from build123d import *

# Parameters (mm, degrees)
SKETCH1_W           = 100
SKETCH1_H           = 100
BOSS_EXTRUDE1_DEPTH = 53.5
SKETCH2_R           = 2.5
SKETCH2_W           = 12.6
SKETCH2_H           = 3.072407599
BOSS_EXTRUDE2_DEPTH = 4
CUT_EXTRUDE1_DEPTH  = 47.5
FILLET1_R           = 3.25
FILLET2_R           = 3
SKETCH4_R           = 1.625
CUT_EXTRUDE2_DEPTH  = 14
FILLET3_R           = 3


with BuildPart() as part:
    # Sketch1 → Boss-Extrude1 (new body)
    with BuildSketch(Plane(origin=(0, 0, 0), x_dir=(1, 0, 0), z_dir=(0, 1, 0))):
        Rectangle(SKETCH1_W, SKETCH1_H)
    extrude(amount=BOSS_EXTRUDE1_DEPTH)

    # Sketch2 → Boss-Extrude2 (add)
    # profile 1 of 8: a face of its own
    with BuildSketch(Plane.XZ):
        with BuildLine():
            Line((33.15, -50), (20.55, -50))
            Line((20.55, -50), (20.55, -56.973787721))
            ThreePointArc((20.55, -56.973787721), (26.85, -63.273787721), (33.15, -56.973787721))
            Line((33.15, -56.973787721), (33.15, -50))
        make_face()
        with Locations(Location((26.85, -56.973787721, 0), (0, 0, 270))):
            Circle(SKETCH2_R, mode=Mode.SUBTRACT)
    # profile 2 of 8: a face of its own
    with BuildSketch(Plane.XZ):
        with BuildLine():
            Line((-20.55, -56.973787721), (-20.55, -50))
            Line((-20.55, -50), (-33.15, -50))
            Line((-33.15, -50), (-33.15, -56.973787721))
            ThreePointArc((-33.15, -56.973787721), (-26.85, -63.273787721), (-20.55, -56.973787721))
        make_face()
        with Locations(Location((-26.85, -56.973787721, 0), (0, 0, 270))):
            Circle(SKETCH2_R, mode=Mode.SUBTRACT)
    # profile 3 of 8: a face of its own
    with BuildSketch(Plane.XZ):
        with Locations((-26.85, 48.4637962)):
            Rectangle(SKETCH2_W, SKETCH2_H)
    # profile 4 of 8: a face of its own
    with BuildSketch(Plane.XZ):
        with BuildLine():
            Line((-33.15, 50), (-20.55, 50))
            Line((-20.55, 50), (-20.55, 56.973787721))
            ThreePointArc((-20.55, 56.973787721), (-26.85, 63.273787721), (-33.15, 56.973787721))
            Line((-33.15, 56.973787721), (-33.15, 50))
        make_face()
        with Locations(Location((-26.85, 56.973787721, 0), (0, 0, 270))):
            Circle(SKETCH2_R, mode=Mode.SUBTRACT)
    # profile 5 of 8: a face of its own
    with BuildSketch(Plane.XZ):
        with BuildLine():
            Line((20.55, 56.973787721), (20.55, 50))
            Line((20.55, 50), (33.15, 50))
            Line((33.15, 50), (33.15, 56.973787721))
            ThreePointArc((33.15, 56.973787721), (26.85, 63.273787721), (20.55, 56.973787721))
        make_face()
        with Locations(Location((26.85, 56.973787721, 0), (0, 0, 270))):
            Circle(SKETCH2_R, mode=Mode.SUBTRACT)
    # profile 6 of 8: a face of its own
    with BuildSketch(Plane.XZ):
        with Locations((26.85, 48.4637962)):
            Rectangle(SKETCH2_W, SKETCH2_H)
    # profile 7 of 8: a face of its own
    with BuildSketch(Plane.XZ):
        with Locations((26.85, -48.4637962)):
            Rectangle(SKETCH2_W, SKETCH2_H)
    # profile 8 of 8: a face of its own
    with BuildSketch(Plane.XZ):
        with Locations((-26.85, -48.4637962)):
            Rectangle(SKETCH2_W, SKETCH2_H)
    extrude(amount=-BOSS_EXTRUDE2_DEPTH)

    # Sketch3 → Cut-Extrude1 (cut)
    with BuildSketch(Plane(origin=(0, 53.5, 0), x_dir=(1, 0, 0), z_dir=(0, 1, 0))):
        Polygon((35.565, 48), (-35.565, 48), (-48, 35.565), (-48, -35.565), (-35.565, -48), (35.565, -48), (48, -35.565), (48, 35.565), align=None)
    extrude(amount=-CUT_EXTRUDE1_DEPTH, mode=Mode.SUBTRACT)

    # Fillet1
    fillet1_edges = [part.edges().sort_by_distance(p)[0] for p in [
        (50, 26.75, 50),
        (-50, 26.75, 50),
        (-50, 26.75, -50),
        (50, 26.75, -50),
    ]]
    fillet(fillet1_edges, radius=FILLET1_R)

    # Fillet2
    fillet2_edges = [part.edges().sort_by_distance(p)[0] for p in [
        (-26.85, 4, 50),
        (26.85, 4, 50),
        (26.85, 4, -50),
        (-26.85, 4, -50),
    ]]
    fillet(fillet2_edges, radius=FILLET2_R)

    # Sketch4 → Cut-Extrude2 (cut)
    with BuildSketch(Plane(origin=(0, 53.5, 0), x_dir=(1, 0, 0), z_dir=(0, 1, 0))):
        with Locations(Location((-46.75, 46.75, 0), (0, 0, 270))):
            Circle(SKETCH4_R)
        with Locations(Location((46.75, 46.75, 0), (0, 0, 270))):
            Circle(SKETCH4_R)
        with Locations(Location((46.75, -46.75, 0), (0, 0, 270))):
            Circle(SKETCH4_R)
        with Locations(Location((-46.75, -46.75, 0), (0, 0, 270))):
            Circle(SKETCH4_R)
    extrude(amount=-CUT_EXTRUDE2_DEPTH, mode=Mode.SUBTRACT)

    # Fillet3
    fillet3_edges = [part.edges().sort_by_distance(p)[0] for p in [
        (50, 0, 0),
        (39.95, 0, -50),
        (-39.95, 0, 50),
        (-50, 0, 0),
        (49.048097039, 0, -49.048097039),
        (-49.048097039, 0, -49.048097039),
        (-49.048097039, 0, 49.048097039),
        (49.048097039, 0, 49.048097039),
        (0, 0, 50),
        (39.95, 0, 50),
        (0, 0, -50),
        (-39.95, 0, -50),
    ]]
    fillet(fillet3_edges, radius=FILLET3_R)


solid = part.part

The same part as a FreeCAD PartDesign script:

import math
import FreeCAD as App
import Part
import Sketcher
from FreeCAD import Vector
Q = App.Units.Quantity


def edges_at(feature, points):
    """Names of the edges that pass closest to the given points."""
    edges = feature.Shape.Edges
    near = lambda p: min(range(len(edges)), key=lambda i: edges[i].distToShape(Part.Vertex(*p))[0])
    return sorted({f"Edge{near(p) + 1}" for p in points})


def add_polygon(sketch, points):
    """Adds a closed chain of lines whose ends are joined by coincident constraints."""
    first, n = sketch.GeometryCount, len(points)
    for a, b in zip(points, points[1:] + points[:1]):
        sketch.addGeometry(Part.LineSegment(App.Vector(*a, 0), App.Vector(*b, 0)), False)
    for i in range(n):
        sketch.addConstraint(Sketcher.Constraint("Coincident", first + i, 2, first + (i + 1) % n, 1))

doc = App.newDocument("Part")
body = doc.addObject("PartDesign::Body", "Body")

sketch1 = body.newObject("Sketcher::SketchObject", "Sketch")
sketch1.AttachmentSupport = (doc.getObject("XZ_Plane"), [""])
sketch1.MapMode = "FlatFace"
add_polygon(sketch1, [(-50, -50), (-50, 50), (50, 50), (50, -50)])
sketch1.addConstraint(Sketcher.Constraint("Vertical", 0))
sketch1.addConstraint(Sketcher.Constraint("Horizontal", 1))
sketch1.addConstraint(Sketcher.Constraint("Vertical", 2))
sketch1.addConstraint(Sketcher.Constraint("Horizontal", 3))
sketch1.addConstraint(Sketcher.Constraint("Symmetric", 0, 2, 2, 2, -1, 1))
sketch1.addConstraint(Sketcher.Constraint("Equal", 3, 0))
sketch1.addConstraint(Sketcher.Constraint("DistanceX", 1, 1, 1, 2, Q("100 mm")))
pad1 = body.newObject("PartDesign::Pad", "Pad")
pad1.Profile = sketch1
pad1.Length = 53.5
pad1.Reversed = True

sketch2 = body.newObject("Sketcher::SketchObject", "Sketch001")
sketch2.AttachmentSupport = (doc.getObject("XZ_Plane"), [""])
sketch2.MapMode = "FlatFace"
sketch2.addGeometry(Part.LineSegment(Vector(33.1, -57, 0), Vector(33.1, -46.9, 0)), False)
sketch2.addGeometry(Part.LineSegment(Vector(33.1, -46.9, 0), Vector(20.6, -46.9, 0)), False)
sketch2.addGeometry(Part.LineSegment(Vector(20.6, -46.9, 0), Vector(20.6, -57, 0)), False)
sketch2.addGeometry(Part.ArcOfCircle(Part.Circle(Vector(26.9, -57, 0), Vector(0, 0, 1), 6.3), math.radians(180), math.radians(360)), False)
sketch2.addGeometry(Part.Circle(Vector(26.9, -57, 0), Vector(0, 0, 1), 2.5), False)
sketch2.addGeometry(Part.LineSegment(Vector(-20.6, -57, 0), Vector(-20.6, -46.9, 0)), False)
sketch2.addGeometry(Part.LineSegment(Vector(-20.6, -46.9, 0), Vector(-33.1, -46.9, 0)), False)
sketch2.addGeometry(Part.LineSegment(Vector(-33.1, -46.9, 0), Vector(-33.1, -57, 0)), False)
sketch2.addGeometry(Part.ArcOfCircle(Part.Circle(Vector(-26.9, -57, 0), Vector(0, 0, 1), 6.3), math.radians(180), math.radians(360)), False)
sketch2.addGeometry(Part.Circle(Vector(-26.9, -57, 0), Vector(0, 0, 1), 2.5), False)
sketch2.addGeometry(Part.LineSegment(Vector(-33.1, 46.9, 0), Vector(-20.6, 46.9, 0)), False)
sketch2.addGeometry(Part.LineSegment(Vector(-20.6, 46.9, 0), Vector(-20.6, 57, 0)), False)
sketch2.addGeometry(Part.ArcOfCircle(Part.Circle(Vector(-26.9, 57, 0), Vector(0, 0, 1), 6.3), math.radians(0), math.radians(180)), False)
sketch2.addGeometry(Part.LineSegment(Vector(-33.1, 57, 0), Vector(-33.1, 46.9, 0)), False)
sketch2.addGeometry(Part.Circle(Vector(-26.9, 57, 0), Vector(0, 0, 1), 2.5), False)
sketch2.addGeometry(Part.LineSegment(Vector(20.6, 57, 0), Vector(20.6, 46.9, 0)), False)
sketch2.addGeometry(Part.LineSegment(Vector(20.6, 46.9, 0), Vector(33.1, 46.9, 0)), False)
sketch2.addGeometry(Part.LineSegment(Vector(33.1, 46.9, 0), Vector(33.1, 57, 0)), False)
sketch2.addGeometry(Part.ArcOfCircle(Part.Circle(Vector(26.9, 57, 0), Vector(0, 0, 1), 6.3), math.radians(0), math.radians(180)), False)
sketch2.addGeometry(Part.Circle(Vector(26.9, 57, 0), Vector(0, 0, 1), 2.5), False)
sketch2.addConstraint(Sketcher.Constraint("Coincident", 0, 2, 1, 1))
sketch2.addConstraint(Sketcher.Constraint("Coincident", 1, 2, 2, 1))
sketch2.addConstraint(Sketcher.Constraint("Tangent", 2, 2, 3, 1))
sketch2.addConstraint(Sketcher.Constraint("Tangent", 3, 2, 0, 1))
sketch2.addConstraint(Sketcher.Constraint("Coincident", 5, 2, 6, 1))
sketch2.addConstraint(Sketcher.Constraint("Coincident", 6, 2, 7, 1))
sketch2.addConstraint(Sketcher.Constraint("Tangent", 7, 2, 8, 1))
sketch2.addConstraint(Sketcher.Constraint("Tangent", 8, 2, 5, 1))
sketch2.addConstraint(Sketcher.Constraint("Coincident", 10, 2, 11, 1))
sketch2.addConstraint(Sketcher.Constraint("Tangent", 11, 2, 12, 1))
sketch2.addConstraint(Sketcher.Constraint("Tangent", 12, 2, 13, 1))
sketch2.addConstraint(Sketcher.Constraint("Coincident", 13, 2, 10, 1))
sketch2.addConstraint(Sketcher.Constraint("Coincident", 15, 2, 16, 1))
sketch2.addConstraint(Sketcher.Constraint("Coincident", 16, 2, 17, 1))
sketch2.addConstraint(Sketcher.Constraint("Tangent", 17, 2, 18, 1))
sketch2.addConstraint(Sketcher.Constraint("Tangent", 18, 2, 15, 1))
sketch2.addConstraint(Sketcher.Constraint("Vertical", 0))
sketch2.addConstraint(Sketcher.Constraint("Horizontal", 1))
sketch2.addConstraint(Sketcher.Constraint("Vertical", 2))
sketch2.addConstraint(Sketcher.Constraint("Vertical", 5))
sketch2.addConstraint(Sketcher.Constraint("Horizontal", 6))
sketch2.addConstraint(Sketcher.Constraint("Vertical", 7))
sketch2.addConstraint(Sketcher.Constraint("Horizontal", 10))
sketch2.addConstraint(Sketcher.Constraint("Vertical", 11))
sketch2.addConstraint(Sketcher.Constraint("Vertical", 13))
sketch2.addConstraint(Sketcher.Constraint("Vertical", 15))
sketch2.addConstraint(Sketcher.Constraint("Horizontal", 16))
sketch2.addConstraint(Sketcher.Constraint("Vertical", 17))
sketch2.addConstraint(Sketcher.Constraint("Coincident", 4, 3, 3, 3))
sketch2.addConstraint(Sketcher.Constraint("Coincident", 9, 3, 8, 3))
sketch2.addConstraint(Sketcher.Constraint("Coincident", 14, 3, 12, 3))
sketch2.addConstraint(Sketcher.Constraint("Coincident", 19, 3, 18, 3))
sketch2.addConstraint(Sketcher.Constraint("Equal", 3, 8))
sketch2.addConstraint(Sketcher.Constraint("Equal", 4, 9))
sketch2.addConstraint(Sketcher.Constraint("Equal", 8, 12))
sketch2.addConstraint(Sketcher.Constraint("Equal", 9, 14))
sketch2.addConstraint(Sketcher.Constraint("Equal", 12, 18))
sketch2.addConstraint(Sketcher.Constraint("Equal", 14, 19))
sketch2.addConstraint(Sketcher.Constraint("Symmetric", 3, 3, 12, 3, -1, 1))
sketch2.addConstraint(Sketcher.Constraint("Symmetric", 8, 3, 18, 3, -1, 1))
sketch2.addConstraint(Sketcher.Constraint("Symmetric", 3, 3, 8, 3, -2))
sketch2.addConstraint(Sketcher.Constraint("Horizontal", 1, 2, 5, 2))
sketch2.addConstraint(Sketcher.Constraint("Horizontal", 13, 2, 15, 2))
sketch2.addConstraint(Sketcher.Constraint("Equal", 7, 11))
sketch2.addConstraint(Sketcher.Constraint("Diameter", 4, Q("5 mm")))
sketch2.addConstraint(Sketcher.Constraint("Radius", 3, Q("6.3 mm")))
sketch2.addConstraint(Sketcher.Constraint("DistanceX", 8, 3, 0, 2, Q("60 mm")))
sketch2.addConstraint(Sketcher.Constraint("DistanceY", 0, 1, 0, 2, Q("10.046195 mm")))
sketch2.addConstraint(Sketcher.Constraint("DistanceY", 0, 2, 18, 3, Q("103.90138 mm")))
pad2 = body.newObject("PartDesign::Pad", "Pad001")
pad2.Profile = sketch2
pad2.Length = 4
pad2.Reversed = True

sketch3 = body.newObject("Sketcher::SketchObject", "Sketch002")
sketch3.AttachmentSupport = (doc.getObject("XZ_Plane"), [""])
sketch3.MapMode = "FlatFace"
sketch3.AttachmentOffset = App.Placement(Vector(0, 0, -53.5), App.Rotation())
add_polygon(sketch3, [(36, -48), (-36, -48), (-48, -36), (-48, 36), (-36, 48), (36, 48), (48, 36), (48, -36)])
sketch3.addConstraint(Sketcher.Constraint("Horizontal", 0))
sketch3.addConstraint(Sketcher.Constraint("Vertical", 2))
sketch3.addConstraint(Sketcher.Constraint("Horizontal", 4))
sketch3.addConstraint(Sketcher.Constraint("Vertical", 6))
sketch3.addConstraint(Sketcher.Constraint("Symmetric", 0, 2, 4, 2, -1, 1))
sketch3.addConstraint(Sketcher.Constraint("Symmetric", 1, 2, 5, 2, -1, 1))
sketch3.addConstraint(Sketcher.Constraint("Perpendicular", 1, 3))
sketch3.addConstraint(Sketcher.Constraint("Perpendicular", 5, 7))
sketch3.addConstraint(Sketcher.Constraint("Horizontal", 2, 2, 5, 2))
sketch3.addConstraint(Sketcher.Constraint("Horizontal", 1, 2, 6, 2))
sketch3.addConstraint(Sketcher.Constraint("Vertical", 0, 2, 3, 2))
sketch3.addConstraint(Sketcher.Constraint("Equal", 4, 2))
sketch3.addConstraint(Sketcher.Constraint("DistanceY", 0, 2, -1, 1, Q("48 mm")))
sketch3.addConstraint(Sketcher.Constraint("DistanceX", 0, 2, 0, 1, Q("71.13 mm")))
pocket1 = body.newObject("PartDesign::Pocket", "Pocket")
pocket1.Profile = sketch3
pocket1.Length = 47.5
pocket1.Reversed = True
doc.recompute()

fillet = body.newObject("PartDesign::Fillet", "Fillet")
fillet.Base = (pocket1, edges_at(pocket1, [
    (50, 26.75, 50),
    (-50, 26.75, 50),
    (-50, 26.75, -50),
    (50, 26.75, -50),
]))
fillet.Radius = 3.25
doc.recompute()

fillet2 = body.newObject("PartDesign::Fillet", "Fillet001")
fillet2.Base = (fillet, edges_at(fillet, [
    (-26.85, 4, 50),
    (26.85, 4, 50),
    (26.85, 4, -50),
    (-26.85, 4, -50),
]))
fillet2.Radius = 3

sketch4 = body.newObject("Sketcher::SketchObject", "Sketch003")
sketch4.AttachmentSupport = (doc.getObject("XZ_Plane"), [""])
sketch4.MapMode = "FlatFace"
sketch4.AttachmentOffset = App.Placement(Vector(0, 0, -53.5), App.Rotation())
sketch4.addGeometry(Part.Circle(Vector(-46.8, -46.8, 0), Vector(0, 0, 1), 1.6), False)
sketch4.addGeometry(Part.Circle(Vector(46.8, -46.8, 0), Vector(0, 0, 1), 1.6), False)
sketch4.addGeometry(Part.Circle(Vector(46.8, 46.8, 0), Vector(0, 0, 1), 1.6), False)
sketch4.addGeometry(Part.Circle(Vector(-46.8, 46.8, 0), Vector(0, 0, 1), 1.6), False)
sketch4.addConstraint(Sketcher.Constraint("Equal", 0, 1))
sketch4.addConstraint(Sketcher.Constraint("Equal", 1, 2))
sketch4.addConstraint(Sketcher.Constraint("Equal", 2, 3))
sketch4.addConstraint(Sketcher.Constraint("Symmetric", 0, 3, 2, 3, -1, 1))
sketch4.addConstraint(Sketcher.Constraint("Symmetric", 1, 3, 3, 3, -1, 1))
sketch4.addConstraint(Sketcher.Constraint("Symmetric", 0, 3, 1, 3, -2))
sketch4.addConstraint(Sketcher.Constraint("Diameter", 0, Q("3.25 mm")))
sketch4.addConstraint(Sketcher.Constraint("DistanceX", 0, 3, 1, 3, Q("93.5 mm")))
sketch4.addConstraint(Sketcher.Constraint("DistanceY", 1, 3, 2, 3, Q("93.5 mm")))
pocket2 = body.newObject("PartDesign::Pocket", "Pocket001")
pocket2.Profile = sketch4
pocket2.Length = 14
pocket2.Reversed = True
doc.recompute()

fillet3 = body.newObject("PartDesign::Fillet", "Fillet002")
fillet3.Base = (pocket2, edges_at(pocket2, [
    (50, 0, 0),
    (39.95, 0, -50),
    (-39.95, 0, 50),
    (-50, 0, 0),
    (49.048, 0, -49.048),
    (-49.048, 0, -49.048),
    (-49.048, 0, 49.048),
    (49.048, 0, 49.048),
    (0, 0, 50),
    (39.95, 0, 50),
    (0, 0, -50),
    (-39.95, 0, -50),
]))
fillet3.Radius = 3

doc.recompute()
